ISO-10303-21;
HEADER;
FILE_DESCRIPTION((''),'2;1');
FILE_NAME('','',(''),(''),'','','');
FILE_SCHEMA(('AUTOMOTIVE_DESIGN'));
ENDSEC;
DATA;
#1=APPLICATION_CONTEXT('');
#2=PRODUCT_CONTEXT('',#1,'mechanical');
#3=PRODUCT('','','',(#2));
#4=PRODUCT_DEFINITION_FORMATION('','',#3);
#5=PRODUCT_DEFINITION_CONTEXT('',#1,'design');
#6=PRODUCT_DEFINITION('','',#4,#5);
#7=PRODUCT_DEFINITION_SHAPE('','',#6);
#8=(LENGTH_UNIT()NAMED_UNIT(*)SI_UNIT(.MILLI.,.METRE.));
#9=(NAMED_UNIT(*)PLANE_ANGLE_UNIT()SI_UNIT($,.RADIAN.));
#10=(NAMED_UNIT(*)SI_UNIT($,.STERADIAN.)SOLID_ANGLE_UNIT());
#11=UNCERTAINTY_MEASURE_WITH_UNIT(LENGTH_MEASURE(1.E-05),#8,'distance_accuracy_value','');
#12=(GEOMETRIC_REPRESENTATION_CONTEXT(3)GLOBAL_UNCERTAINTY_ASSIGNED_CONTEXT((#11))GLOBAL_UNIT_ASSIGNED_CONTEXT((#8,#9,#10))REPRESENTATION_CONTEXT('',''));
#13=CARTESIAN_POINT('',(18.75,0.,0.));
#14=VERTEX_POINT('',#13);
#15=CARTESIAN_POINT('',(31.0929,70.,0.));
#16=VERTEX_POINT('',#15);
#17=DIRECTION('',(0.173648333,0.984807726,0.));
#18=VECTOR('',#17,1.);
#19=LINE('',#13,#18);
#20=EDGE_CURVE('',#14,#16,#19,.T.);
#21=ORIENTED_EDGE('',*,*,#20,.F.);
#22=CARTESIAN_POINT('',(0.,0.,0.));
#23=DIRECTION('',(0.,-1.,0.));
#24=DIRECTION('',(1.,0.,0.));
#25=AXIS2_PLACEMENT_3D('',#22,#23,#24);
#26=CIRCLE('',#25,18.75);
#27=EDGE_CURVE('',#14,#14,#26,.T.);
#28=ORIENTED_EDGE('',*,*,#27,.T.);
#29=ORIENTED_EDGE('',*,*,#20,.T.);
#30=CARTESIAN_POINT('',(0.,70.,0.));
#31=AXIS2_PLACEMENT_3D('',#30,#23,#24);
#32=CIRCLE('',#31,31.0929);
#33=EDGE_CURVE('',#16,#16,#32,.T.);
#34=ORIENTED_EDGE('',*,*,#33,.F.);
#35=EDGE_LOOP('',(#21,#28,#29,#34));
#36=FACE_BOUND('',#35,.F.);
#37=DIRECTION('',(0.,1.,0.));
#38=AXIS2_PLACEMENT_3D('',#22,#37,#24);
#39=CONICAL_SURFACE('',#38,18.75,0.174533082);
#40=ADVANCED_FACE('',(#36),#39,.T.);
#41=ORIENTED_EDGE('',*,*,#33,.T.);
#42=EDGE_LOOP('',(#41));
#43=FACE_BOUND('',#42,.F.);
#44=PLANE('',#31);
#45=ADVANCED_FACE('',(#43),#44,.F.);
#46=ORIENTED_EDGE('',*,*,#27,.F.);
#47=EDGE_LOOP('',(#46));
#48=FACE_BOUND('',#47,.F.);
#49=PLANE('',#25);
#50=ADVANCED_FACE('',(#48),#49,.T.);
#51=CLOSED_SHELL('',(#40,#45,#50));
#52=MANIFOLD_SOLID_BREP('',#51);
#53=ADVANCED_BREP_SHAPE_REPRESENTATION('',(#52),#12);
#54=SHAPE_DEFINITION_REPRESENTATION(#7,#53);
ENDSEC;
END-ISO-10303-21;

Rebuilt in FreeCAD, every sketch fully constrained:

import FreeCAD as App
import Part
import Sketcher

V = App.Vector
Q = App.Units.Quantity


def add_polygon(sketch, points):
    """Adds a closed chain of lines whose ends are joined by coincident constraints."""
    first, n = sketch.GeometryCount, len(points)
    for a, b in zip(points, points[1:] + points[:1]):
        sketch.addGeometry(Part.LineSegment(App.Vector(*a, 0), App.Vector(*b, 0)), False)
    for i in range(n):
        sketch.addConstraint(Sketcher.Constraint("Coincident", first + i, 2, first + (i + 1) % n, 1))

doc = App.newDocument("Part")
body = doc.addObject("PartDesign::Body", "Body")

# Sketch on XY plane
sketch1 = doc.addObject("Sketcher::SketchObject", "Sketch")
body.addObject(sketch1)
sketch1.AttachmentSupport = (doc.XY_Plane, [""])
sketch1.MapMode = "FlatFace"
add_polygon(sketch1, [(0, 0), (19, 0), (31, 70), (0, 70)])  # lines 0-3
sketch1.addConstraint(Sketcher.Constraint("Horizontal", 0))
sketch1.addConstraint(Sketcher.Constraint("Horizontal", 2))
sketch1.addConstraint(Sketcher.Constraint("Vertical", 3))
sketch1.addConstraint(Sketcher.Constraint("Coincident", 3, 2, -1, 1))
sketch1.addConstraint(Sketcher.Constraint("DistanceY", 3, 2, 3, 1, 70.0))
sketch1.addConstraint(Sketcher.Constraint("Angle", 1, Q("80 deg")))
sketch1.addConstraint(Sketcher.Constraint("DistanceX", 0, 1, 0, 2, 18.75))
revolution = doc.addObject("PartDesign::Revolution", "Revolution")
body.addObject(revolution)
revolution.Profile = sketch1
revolution.ReferenceAxis = (sketch1, ["V_Axis"])
revolution.Angle = 360

doc.recompute()
